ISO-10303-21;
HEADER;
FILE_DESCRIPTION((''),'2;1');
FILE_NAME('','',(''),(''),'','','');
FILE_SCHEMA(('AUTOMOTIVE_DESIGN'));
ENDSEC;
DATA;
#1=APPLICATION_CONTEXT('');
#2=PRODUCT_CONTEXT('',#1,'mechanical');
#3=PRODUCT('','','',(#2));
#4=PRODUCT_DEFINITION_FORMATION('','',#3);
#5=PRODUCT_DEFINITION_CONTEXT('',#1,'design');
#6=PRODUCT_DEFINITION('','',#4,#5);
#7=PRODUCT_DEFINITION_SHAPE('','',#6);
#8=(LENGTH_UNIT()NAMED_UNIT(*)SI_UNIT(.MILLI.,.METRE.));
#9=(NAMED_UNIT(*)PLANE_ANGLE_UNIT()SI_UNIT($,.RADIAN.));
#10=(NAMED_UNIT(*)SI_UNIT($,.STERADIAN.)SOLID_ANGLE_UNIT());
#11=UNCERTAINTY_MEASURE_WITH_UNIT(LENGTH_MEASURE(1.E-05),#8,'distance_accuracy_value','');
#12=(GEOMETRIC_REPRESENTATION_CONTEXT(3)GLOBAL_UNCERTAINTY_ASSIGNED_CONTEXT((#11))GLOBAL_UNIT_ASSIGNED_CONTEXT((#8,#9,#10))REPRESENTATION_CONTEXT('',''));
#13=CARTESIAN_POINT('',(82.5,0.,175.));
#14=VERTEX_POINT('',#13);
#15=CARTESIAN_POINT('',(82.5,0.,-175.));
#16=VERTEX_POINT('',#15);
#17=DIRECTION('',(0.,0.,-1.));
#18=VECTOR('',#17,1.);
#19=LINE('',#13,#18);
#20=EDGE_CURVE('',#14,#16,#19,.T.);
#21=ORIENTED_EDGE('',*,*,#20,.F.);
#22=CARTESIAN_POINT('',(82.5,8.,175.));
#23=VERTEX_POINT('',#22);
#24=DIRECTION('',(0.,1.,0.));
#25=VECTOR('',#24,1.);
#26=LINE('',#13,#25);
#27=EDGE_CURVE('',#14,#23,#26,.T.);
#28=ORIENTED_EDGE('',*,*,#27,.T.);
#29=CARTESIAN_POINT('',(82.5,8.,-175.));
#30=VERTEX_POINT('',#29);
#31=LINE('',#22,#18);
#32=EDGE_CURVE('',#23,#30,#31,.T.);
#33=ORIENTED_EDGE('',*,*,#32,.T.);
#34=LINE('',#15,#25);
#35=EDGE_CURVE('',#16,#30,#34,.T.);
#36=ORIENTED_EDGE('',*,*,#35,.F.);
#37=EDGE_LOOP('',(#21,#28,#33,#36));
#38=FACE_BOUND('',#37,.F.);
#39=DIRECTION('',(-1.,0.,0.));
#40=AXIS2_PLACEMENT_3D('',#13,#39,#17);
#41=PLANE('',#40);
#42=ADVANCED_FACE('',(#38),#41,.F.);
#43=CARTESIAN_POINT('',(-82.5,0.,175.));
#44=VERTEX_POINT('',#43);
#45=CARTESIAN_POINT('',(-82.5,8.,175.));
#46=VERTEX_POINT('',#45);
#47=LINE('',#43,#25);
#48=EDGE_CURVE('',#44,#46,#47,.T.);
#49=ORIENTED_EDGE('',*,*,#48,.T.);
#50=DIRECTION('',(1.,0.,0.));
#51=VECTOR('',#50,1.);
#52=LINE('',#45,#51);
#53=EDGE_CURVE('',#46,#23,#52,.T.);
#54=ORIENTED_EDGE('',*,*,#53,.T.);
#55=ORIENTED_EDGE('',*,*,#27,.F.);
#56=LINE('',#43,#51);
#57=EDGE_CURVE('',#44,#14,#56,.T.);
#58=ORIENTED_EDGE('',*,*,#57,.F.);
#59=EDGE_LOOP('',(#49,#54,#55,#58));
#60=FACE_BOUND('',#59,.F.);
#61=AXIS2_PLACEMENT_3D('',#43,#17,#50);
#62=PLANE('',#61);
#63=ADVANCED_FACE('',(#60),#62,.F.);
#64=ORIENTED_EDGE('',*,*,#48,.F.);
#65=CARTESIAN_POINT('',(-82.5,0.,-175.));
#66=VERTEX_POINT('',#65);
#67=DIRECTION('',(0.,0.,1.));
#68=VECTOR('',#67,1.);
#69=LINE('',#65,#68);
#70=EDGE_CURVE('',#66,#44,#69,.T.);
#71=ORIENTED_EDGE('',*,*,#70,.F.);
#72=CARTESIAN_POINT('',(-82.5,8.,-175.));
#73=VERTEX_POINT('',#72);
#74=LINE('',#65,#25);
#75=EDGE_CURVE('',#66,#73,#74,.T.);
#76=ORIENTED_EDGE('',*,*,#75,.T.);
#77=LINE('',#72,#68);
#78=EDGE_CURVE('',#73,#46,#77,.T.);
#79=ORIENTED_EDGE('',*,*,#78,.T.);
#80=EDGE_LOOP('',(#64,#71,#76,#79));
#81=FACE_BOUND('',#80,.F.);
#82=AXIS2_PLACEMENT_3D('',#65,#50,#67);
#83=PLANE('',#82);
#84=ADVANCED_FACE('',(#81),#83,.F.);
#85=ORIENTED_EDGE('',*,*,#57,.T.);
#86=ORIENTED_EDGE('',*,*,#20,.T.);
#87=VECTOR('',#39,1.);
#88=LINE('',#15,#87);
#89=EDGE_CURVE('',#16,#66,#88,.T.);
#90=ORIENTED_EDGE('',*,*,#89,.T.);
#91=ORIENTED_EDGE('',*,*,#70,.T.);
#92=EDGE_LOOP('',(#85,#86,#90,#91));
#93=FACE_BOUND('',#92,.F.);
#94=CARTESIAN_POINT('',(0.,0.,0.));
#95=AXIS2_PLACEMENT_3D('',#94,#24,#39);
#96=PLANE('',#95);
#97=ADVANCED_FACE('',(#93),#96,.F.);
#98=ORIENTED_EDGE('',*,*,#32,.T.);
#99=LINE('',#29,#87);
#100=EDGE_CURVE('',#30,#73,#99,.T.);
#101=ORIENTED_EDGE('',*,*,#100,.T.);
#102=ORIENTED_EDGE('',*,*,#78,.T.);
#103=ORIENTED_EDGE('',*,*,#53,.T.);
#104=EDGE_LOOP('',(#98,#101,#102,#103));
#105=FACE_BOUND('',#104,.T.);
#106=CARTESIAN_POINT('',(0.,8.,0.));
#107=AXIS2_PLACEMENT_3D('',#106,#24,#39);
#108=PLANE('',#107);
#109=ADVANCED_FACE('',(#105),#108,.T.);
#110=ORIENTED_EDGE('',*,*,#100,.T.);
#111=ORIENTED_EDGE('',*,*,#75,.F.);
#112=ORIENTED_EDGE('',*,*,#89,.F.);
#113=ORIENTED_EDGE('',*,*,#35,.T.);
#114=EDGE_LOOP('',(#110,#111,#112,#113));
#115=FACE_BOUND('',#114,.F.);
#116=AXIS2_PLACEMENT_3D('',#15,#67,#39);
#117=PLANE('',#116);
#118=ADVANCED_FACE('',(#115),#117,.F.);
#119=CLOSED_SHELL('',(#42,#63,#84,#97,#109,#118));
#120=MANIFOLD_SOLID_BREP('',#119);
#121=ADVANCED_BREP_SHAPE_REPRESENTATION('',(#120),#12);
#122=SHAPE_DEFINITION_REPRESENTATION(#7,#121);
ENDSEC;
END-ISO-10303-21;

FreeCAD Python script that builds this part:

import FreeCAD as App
import Part
import Sketcher
from FreeCAD import Vector


def add_polygon(sketch, points):
    """Adds a closed chain of lines whose ends are joined by coincident constraints."""
    first, n = sketch.GeometryCount, len(points)
    for a, b in zip(points, points[1:] + points[:1]):
        sketch.addGeometry(Part.LineSegment(App.Vector(*a, 0), App.Vector(*b, 0)), False)
    for i in range(n):
        sketch.addConstraint(Sketcher.Constraint("Coincident", first + i, 2, first + (i + 1) % n, 1))

doc = App.newDocument("Part")
body = doc.addObject("PartDesign::Body", "Body")

# Sketch on XZ plane
sketch1 = body.newObject("Sketcher::SketchObject", "Sketch")
sketch1.AttachmentSupport = (doc.getObject("XZ_Plane"), [""])
sketch1.MapMode = "FlatFace"
add_polygon(sketch1, [(-82, -175), (-82, 175), (82, 175), (82, -175)])  # lines 0-3
sketch1.addConstraint(Sketcher.Constraint("Vertical", 0))
sketch1.addConstraint(Sketcher.Constraint("Horizontal", 1))
sketch1.addConstraint(Sketcher.Constraint("Vertical", 2))
sketch1.addConstraint(Sketcher.Constraint("Horizontal", 3))
sketch1.addConstraint(Sketcher.Constraint("Symmetric", 0, 2, 2, 2, -1, 1))
sketch1.addConstraint(Sketcher.Constraint("DistanceX", 1, 1, 1, 2, 165.0))
sketch1.addConstraint(Sketcher.Constraint("DistanceY", 0, 1, 0, 2, 350.0))
pad1 = body.newObject("PartDesign::Pad", "Pad")
pad1.Profile = sketch1
pad1.Length = 8
pad1.Reversed = True

doc.recompute()
